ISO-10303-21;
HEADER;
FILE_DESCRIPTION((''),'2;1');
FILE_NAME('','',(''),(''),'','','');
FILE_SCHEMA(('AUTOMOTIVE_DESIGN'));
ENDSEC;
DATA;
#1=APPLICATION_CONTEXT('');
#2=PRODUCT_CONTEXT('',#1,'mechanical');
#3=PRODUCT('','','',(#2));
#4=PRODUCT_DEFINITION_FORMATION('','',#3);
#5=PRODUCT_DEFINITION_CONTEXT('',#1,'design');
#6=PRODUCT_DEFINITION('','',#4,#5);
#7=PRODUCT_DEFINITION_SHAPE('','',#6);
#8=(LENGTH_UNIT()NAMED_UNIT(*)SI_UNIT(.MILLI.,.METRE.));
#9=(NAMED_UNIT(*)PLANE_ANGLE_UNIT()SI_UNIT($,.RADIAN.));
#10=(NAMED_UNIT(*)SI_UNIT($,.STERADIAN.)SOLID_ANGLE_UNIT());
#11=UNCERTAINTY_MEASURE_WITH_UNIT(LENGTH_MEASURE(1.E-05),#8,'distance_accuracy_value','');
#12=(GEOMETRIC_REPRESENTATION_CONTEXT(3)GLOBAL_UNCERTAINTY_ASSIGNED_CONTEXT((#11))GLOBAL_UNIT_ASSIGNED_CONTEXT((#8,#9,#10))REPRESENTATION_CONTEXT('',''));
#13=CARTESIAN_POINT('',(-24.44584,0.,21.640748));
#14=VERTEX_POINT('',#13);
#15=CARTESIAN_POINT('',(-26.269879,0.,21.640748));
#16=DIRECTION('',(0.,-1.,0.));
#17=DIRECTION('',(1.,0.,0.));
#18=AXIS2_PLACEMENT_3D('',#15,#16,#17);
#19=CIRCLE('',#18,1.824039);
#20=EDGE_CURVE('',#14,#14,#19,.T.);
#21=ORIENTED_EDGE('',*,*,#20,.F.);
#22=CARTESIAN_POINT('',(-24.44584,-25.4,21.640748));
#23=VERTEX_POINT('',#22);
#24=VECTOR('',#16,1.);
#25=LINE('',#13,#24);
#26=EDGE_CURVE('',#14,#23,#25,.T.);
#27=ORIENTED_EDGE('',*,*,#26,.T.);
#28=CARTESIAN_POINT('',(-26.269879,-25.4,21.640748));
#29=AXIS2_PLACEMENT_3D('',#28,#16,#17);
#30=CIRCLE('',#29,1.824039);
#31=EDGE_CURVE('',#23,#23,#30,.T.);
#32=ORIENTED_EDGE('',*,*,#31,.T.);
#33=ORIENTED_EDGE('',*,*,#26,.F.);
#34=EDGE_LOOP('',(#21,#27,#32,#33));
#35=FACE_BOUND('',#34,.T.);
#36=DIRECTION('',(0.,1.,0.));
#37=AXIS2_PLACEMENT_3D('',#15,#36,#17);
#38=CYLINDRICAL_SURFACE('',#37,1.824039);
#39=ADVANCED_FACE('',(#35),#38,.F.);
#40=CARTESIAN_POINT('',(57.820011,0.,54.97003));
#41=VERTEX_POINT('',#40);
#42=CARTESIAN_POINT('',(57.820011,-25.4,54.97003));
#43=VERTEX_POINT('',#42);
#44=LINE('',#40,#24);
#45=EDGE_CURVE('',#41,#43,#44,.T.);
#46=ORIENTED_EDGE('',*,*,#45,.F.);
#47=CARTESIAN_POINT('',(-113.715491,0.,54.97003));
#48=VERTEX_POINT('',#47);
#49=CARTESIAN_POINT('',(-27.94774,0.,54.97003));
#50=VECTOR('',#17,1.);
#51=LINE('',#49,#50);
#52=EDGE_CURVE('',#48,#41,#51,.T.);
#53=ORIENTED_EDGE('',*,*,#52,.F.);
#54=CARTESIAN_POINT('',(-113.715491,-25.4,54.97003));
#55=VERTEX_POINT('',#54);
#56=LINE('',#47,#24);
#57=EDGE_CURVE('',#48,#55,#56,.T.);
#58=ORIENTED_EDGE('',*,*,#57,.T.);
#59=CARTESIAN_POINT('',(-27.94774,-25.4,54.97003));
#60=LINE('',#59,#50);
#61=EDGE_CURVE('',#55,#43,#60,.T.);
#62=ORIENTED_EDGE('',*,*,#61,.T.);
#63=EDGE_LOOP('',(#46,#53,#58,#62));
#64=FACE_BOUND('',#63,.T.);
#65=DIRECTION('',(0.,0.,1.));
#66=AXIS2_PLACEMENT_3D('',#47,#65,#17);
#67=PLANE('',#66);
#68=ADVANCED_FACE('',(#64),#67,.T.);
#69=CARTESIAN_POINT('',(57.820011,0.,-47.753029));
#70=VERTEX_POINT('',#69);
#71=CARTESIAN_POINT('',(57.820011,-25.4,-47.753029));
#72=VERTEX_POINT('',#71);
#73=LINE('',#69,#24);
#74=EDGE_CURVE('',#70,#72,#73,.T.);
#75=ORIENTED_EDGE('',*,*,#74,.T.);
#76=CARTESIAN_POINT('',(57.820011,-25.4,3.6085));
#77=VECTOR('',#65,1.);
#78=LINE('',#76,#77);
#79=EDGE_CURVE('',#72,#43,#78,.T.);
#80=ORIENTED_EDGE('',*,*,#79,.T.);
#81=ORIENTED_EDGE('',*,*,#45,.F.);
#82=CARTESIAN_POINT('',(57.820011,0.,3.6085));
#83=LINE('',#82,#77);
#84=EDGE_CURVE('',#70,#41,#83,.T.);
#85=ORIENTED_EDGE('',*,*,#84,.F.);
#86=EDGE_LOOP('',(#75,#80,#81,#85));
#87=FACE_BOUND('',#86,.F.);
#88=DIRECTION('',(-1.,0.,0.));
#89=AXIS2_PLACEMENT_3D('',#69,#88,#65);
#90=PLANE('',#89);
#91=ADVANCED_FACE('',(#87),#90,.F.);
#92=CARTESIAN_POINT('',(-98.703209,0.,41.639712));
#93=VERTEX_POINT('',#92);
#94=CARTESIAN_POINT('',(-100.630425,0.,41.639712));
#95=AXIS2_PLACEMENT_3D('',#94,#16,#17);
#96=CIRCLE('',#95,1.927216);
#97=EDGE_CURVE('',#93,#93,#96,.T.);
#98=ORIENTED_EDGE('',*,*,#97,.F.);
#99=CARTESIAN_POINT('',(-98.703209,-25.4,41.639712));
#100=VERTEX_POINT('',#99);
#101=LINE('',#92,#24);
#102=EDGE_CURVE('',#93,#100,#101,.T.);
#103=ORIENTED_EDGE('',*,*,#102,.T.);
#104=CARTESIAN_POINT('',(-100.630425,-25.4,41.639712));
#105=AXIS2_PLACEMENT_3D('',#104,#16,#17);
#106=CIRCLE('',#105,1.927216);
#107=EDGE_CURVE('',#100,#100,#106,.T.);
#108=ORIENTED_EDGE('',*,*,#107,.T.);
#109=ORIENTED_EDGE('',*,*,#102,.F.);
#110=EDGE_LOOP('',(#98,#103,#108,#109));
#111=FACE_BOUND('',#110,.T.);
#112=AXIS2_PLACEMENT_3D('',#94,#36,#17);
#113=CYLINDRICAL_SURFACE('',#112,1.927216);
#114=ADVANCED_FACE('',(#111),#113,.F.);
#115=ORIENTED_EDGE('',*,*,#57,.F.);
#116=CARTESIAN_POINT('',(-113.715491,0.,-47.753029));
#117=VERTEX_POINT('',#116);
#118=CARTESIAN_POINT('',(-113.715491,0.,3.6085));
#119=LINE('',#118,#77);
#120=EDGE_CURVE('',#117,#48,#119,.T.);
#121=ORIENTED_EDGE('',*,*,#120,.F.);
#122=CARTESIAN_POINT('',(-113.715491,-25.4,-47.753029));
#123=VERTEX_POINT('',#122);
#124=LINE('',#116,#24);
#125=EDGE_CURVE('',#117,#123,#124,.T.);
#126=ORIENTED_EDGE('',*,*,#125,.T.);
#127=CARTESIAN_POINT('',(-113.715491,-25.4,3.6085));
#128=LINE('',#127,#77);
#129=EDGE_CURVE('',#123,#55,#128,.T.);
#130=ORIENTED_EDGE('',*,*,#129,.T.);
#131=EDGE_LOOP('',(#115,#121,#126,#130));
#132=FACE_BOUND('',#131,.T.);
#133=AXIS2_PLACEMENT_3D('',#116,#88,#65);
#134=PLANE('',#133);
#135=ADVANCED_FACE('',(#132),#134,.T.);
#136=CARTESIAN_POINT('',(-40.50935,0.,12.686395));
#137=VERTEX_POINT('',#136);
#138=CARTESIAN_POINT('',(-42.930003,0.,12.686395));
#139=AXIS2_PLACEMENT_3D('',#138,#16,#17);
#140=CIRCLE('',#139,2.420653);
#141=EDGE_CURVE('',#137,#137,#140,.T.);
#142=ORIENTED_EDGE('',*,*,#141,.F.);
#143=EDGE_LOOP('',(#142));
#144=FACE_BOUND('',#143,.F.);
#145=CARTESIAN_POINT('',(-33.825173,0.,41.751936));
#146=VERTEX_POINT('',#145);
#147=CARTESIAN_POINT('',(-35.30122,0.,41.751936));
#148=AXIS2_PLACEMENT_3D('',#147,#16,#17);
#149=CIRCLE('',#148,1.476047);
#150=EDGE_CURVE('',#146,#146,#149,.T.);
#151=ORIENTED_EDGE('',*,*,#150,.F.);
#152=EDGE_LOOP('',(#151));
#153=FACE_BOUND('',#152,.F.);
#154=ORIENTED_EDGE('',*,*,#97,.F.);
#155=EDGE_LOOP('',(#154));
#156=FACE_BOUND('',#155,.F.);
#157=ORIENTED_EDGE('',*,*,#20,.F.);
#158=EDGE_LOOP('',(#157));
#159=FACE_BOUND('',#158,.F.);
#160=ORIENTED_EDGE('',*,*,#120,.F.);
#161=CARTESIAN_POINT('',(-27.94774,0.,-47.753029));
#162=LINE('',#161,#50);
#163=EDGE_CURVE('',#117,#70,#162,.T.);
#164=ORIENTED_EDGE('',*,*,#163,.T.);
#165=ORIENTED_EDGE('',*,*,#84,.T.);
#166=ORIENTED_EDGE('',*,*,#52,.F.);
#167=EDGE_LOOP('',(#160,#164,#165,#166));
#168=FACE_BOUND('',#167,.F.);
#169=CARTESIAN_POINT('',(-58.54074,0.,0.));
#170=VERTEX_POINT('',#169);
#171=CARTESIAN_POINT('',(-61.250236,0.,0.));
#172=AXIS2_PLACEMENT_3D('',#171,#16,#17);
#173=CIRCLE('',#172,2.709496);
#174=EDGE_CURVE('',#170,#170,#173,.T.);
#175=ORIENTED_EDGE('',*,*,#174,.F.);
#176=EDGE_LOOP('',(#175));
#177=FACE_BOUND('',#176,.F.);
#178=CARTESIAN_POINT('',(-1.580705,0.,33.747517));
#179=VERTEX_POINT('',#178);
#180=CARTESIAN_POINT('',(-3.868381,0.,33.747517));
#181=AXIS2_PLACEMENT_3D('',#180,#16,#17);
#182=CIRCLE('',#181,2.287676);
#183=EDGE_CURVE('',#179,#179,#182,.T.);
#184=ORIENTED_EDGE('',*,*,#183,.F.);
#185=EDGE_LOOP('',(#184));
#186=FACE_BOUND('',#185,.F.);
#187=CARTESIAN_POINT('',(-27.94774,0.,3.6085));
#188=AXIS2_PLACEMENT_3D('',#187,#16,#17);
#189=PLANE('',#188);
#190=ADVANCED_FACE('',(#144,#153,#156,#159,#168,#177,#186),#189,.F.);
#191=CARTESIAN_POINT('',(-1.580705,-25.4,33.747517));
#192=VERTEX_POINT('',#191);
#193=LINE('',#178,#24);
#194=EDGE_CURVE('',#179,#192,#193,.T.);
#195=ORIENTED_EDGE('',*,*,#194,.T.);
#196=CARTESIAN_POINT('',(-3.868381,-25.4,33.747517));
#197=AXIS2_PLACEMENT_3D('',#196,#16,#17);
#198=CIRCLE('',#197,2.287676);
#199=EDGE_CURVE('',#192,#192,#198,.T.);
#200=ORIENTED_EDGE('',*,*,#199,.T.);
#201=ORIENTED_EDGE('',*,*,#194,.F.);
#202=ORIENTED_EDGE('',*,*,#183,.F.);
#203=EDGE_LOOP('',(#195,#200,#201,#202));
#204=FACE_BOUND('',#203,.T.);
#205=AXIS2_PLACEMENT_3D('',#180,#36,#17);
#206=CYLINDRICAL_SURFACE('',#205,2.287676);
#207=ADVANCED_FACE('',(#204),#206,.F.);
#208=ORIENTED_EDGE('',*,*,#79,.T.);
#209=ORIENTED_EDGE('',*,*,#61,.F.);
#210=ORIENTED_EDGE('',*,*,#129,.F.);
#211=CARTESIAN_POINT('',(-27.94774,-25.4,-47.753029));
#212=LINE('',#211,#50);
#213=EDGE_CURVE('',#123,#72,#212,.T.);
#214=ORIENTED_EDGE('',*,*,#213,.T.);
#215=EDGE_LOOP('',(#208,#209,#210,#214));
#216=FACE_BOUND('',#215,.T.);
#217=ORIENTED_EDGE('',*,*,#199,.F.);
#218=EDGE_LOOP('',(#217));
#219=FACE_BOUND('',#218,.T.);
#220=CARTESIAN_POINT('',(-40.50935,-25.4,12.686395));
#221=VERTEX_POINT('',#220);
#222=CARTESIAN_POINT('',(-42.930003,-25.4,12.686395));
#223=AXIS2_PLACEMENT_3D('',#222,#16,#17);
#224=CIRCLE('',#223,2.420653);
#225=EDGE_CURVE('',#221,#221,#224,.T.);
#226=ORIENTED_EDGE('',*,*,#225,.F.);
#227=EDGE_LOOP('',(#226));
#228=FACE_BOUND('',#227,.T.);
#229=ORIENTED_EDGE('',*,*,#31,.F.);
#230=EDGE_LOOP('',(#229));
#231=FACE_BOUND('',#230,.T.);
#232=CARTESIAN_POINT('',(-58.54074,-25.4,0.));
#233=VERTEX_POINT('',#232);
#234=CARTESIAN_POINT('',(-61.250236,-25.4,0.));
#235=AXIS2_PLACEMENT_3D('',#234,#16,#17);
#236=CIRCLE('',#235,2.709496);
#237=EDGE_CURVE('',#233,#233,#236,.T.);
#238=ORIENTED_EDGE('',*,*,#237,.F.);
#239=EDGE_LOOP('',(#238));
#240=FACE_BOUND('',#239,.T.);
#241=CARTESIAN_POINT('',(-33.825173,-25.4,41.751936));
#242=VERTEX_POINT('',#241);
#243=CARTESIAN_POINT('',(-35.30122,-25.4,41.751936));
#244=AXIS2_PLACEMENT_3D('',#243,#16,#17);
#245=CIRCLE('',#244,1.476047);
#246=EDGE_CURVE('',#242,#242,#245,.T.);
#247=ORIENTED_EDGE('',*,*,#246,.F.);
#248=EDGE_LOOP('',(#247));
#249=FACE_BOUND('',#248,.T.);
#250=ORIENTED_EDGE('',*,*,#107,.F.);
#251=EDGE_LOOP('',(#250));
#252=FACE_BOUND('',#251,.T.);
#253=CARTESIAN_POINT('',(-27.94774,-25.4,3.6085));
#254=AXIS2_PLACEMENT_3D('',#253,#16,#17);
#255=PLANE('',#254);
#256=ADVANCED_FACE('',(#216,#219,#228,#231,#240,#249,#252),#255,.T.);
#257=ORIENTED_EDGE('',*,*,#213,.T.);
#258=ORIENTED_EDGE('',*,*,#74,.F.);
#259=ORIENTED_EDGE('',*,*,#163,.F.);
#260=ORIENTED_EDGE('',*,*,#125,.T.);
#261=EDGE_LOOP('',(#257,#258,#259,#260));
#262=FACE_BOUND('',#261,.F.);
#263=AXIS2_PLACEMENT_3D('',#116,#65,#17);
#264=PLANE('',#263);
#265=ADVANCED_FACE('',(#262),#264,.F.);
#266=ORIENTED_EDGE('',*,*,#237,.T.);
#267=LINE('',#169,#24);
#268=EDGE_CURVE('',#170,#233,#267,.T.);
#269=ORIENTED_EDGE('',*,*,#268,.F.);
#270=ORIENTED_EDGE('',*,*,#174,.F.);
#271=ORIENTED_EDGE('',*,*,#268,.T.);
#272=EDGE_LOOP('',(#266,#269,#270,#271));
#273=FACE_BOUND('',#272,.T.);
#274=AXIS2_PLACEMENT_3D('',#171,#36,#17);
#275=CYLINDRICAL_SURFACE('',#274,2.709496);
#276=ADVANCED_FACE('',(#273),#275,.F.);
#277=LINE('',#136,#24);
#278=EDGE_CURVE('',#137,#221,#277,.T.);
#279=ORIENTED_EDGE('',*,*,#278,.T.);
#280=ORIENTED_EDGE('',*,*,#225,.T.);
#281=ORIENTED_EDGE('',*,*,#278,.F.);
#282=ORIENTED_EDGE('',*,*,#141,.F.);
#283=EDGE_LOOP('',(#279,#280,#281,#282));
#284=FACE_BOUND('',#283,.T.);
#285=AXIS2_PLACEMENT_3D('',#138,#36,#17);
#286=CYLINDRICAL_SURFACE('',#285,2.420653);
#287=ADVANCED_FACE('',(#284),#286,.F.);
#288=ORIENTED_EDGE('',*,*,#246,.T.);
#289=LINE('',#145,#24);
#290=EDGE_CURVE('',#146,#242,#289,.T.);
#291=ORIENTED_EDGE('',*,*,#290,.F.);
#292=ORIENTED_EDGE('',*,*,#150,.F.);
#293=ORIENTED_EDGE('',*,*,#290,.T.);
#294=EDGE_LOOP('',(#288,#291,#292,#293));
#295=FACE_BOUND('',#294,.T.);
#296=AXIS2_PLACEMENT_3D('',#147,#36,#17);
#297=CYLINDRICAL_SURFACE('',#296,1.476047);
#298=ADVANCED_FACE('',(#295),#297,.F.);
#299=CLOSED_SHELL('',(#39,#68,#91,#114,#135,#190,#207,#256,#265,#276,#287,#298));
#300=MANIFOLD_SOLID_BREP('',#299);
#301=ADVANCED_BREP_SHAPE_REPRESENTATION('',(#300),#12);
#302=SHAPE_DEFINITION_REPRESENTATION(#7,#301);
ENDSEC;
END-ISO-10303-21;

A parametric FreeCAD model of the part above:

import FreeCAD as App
import Part
import Sketcher
from FreeCAD import Vector
Q = App.Units.Quantity

doc = App.newDocument("Part")
body = doc.addObject("PartDesign::Body", "Body")

# Sketch on XZ plane
sketch1 = body.newObject("Sketcher::SketchObject", "Sketch")
sketch1.AttachmentSupport = (doc.getObject("XZ_Plane"), [""])
sketch1.MapMode = "FlatFace"
sketch1.addGeometry([
    Part.LineSegment(Vector(-113.715491, 54.97003, 0), Vector(-113.715491, -47.753029, 0)),  # 0
    Part.LineSegment(Vector(-113.715491, -47.753029, 0), Vector(57.820011, -47.753029, 0)),  # 1
    Part.LineSegment(Vector(57.820011, -47.753029, 0), Vector(57.820011, 54.97003, 0)),  # 2
    Part.LineSegment(Vector(57.820011, 54.97003, 0), Vector(-113.715491, 54.97003, 0)),  # 3
    Part.Circle(Vector(-61.250236, 0, 0), Vector(0, 0, 1), 2.709496),  # 4
    Part.Circle(Vector(-42.930003, 12.686395, 0), Vector(0, 0, 1), 2.420653),  # 5
    Part.Circle(Vector(-100.630425, 41.639712, 0), Vector(0, 0, 1), 1.927216),  # 6
    Part.Circle(Vector(-26.269879, 21.640748, 0), Vector(0, 0, 1), 1.824039),  # 7
    Part.Circle(Vector(-35.30122, 41.751936, 0), Vector(0, 0, 1), 1.476047),  # 8
    Part.Circle(Vector(-3.868381, 33.747517, 0), Vector(0, 0, 1), 2.287676),  # 9
], False)
sketch1.addConstraint([
    Sketcher.Constraint("Coincident", 0, 2, 1, 1),
    Sketcher.Constraint("Coincident", 1, 2, 2, 1),
    Sketcher.Constraint("Coincident", 2, 2, 3, 1),
    Sketcher.Constraint("Coincident", 3, 2, 0, 1),
    Sketcher.Constraint("Vertical", 0),
    Sketcher.Constraint("Horizontal", 1),
    Sketcher.Constraint("Vertical", 2),
    Sketcher.Constraint("Horizontal", 3),
    Sketcher.Constraint("PointOnObject", 4, 3, -1),
    Sketcher.Constraint("Diameter", 9, Q("4.575352 mm")),
    Sketcher.Constraint("Diameter", 4, Q("5.418992 mm")),
    Sketcher.Constraint("Diameter", 5, Q("4.841306 mm")),
    Sketcher.Constraint("Diameter", 6, Q("3.854432 mm")),
    Sketcher.Constraint("Diameter", 7, Q("3.648078 mm")),
    Sketcher.Constraint("Diameter", 8, Q("2.952094 mm")),
    Sketcher.Constraint("DistanceY", 0, 2, 0, 1, Q("102.723059 mm")),
    Sketcher.Constraint("DistanceX", 7, 3, 9, 3, Q("22.401498 mm")),
    Sketcher.Constraint("DistanceX", 1, 1, 1, 2, Q("171.535503 mm")),
    Sketcher.Constraint("DistanceX", 7, 3, -1, 1, Q("26.269879 mm")),
    Sketcher.Constraint("DistanceX", 8, 3, -1, 1, Q("35.30122 mm")),
    Sketcher.Constraint("DistanceX", 0, 2, -1, 1, Q("113.715491 mm")),
    Sketcher.Constraint("DistanceY", 0, 2, -1, 1, Q("47.753029 mm")),
    Sketcher.Constraint("DistanceX", 6, 3, 4, 3, Q("39.380189 mm")),
    Sketcher.Constraint("DistanceY", 7, 3, 8, 3, Q("20.111188 mm")),
    Sketcher.Constraint("DistanceY", 5, 3, 8, 3, Q("29.065541 mm")),
    Sketcher.Constraint("DistanceY", 7, 3, 9, 3, Q("12.106769 mm")),
    Sketcher.Constraint("DistanceY", 0, 2, 6, 3, Q("89.392741 mm")),
    Sketcher.Constraint("DistanceX", 0, 2, 5, 3, Q("70.785488 mm")),
    Sketcher.Constraint("DistanceY", 7, 3, 2, 2, Q("33.329282 mm")),
    Sketcher.Constraint("DistanceX", 4, 3, -1, 1, Q("61.250236 mm")),
])
pad1 = body.newObject("PartDesign::Pad", "Pad")
pad1.Profile = sketch1
pad1.Length = Q("1 in")

doc.recompute()
